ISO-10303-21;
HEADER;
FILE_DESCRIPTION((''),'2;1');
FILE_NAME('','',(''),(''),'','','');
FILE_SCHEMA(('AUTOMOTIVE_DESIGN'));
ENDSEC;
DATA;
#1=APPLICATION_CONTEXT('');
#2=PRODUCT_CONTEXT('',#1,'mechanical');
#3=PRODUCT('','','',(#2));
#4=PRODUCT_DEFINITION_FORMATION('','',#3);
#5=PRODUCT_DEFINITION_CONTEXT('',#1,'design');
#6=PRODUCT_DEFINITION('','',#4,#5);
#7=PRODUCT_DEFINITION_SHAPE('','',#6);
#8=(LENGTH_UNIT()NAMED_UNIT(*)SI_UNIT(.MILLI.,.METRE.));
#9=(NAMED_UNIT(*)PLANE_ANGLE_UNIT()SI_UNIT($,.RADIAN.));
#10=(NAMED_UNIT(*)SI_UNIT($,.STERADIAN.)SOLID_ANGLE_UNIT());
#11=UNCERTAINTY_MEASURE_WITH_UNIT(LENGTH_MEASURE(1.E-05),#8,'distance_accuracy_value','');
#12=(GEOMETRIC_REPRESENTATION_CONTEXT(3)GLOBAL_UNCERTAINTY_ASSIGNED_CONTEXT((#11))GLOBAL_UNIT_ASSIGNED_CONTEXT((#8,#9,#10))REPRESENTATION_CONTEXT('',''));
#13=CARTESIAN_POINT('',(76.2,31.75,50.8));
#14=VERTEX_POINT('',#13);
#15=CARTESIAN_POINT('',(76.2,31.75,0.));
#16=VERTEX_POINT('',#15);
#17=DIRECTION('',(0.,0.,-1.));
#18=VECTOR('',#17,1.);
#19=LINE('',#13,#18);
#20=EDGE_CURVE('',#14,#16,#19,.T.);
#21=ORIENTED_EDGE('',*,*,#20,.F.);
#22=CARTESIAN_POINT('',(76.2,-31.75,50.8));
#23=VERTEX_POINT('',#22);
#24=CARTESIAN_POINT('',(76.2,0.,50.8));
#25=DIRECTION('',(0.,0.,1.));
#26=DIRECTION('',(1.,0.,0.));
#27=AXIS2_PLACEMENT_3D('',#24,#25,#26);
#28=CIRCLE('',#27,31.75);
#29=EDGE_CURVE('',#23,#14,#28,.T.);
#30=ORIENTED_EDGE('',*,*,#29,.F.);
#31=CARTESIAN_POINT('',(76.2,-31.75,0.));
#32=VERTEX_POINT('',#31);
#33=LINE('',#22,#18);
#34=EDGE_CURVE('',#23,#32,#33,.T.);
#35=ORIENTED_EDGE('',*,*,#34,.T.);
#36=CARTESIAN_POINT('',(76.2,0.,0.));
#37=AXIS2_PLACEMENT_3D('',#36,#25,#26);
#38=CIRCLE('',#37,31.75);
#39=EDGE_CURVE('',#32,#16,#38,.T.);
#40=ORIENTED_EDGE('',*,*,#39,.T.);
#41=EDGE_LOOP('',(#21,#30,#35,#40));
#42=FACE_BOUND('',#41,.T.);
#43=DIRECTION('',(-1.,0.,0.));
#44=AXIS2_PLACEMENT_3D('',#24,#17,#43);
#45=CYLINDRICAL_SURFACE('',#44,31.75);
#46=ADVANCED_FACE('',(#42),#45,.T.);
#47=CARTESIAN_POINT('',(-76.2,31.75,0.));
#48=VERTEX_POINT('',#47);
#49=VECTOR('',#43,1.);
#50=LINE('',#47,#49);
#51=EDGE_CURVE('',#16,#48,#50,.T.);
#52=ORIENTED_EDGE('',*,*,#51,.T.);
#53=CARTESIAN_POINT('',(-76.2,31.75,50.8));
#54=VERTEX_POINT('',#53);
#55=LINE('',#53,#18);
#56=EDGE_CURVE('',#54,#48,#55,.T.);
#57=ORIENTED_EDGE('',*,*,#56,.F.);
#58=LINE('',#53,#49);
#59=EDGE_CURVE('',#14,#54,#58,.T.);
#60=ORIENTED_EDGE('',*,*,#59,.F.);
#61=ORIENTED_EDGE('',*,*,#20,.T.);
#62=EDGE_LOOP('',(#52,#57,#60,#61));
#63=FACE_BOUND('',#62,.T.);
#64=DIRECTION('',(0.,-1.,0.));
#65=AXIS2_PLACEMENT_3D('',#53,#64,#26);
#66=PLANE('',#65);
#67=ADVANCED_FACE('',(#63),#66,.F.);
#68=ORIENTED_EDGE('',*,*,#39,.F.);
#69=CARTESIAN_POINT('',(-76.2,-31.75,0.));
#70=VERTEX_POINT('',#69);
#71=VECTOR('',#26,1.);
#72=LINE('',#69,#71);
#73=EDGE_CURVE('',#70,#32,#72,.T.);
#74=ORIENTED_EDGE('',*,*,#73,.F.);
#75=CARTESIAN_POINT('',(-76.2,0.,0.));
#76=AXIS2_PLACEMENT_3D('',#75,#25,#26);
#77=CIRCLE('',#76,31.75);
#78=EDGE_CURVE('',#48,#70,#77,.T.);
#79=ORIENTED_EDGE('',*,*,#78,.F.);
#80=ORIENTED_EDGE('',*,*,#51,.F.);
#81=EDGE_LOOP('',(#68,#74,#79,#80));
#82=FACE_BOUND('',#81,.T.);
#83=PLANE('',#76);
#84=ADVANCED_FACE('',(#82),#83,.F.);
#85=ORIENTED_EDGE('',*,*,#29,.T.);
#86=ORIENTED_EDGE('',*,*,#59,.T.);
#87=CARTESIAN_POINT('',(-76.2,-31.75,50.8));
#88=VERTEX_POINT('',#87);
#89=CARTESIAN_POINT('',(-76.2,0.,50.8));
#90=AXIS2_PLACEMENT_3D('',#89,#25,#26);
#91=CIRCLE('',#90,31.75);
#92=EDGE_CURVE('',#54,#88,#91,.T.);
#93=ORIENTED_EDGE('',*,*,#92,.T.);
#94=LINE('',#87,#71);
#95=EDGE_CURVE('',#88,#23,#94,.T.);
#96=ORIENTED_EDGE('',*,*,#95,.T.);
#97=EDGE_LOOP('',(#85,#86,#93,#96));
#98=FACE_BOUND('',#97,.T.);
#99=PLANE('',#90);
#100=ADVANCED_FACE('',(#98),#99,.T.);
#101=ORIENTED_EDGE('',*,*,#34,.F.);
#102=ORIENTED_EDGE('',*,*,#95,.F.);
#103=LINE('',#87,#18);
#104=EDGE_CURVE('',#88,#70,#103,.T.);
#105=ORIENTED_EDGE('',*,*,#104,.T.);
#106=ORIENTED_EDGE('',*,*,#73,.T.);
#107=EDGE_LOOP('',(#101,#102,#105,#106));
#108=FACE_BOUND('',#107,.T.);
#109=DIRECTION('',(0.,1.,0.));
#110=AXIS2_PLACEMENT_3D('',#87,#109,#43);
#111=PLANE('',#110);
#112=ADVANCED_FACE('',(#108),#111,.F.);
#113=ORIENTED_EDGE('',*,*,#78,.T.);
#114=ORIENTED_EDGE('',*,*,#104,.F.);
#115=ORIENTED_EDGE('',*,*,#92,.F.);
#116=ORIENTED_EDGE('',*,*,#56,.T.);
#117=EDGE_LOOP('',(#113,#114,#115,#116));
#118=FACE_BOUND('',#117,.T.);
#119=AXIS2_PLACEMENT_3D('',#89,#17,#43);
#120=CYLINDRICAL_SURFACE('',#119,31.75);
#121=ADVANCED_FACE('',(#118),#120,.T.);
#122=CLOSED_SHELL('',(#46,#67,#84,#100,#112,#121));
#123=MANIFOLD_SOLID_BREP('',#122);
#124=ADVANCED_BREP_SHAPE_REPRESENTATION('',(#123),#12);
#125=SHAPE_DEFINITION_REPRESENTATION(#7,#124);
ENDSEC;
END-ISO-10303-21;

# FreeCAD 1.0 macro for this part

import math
import FreeCAD as App
import Part
import Sketcher

V = App.Vector
Q = App.Units.Quantity

doc = App.newDocument("Part")
params = doc.addObject("Spreadsheet::Sheet", "Params")
for row, (alias, value) in enumerate([
    ("sketch1_width", "6 in"),
    ("sketch1_radius", "1.25 in"),
    ("pad1_length", "2 in"),
], start=1):
    params.set(f"A{row}", alias)
    params.set(f"B{row}", "=" + value)
    params.setAlias(f"B{row}", alias)

body = doc.addObject("PartDesign::Body", "Body")

# Sketch on XY plane
sketch1 = body.newObject("Sketcher::SketchObject", "Sketch")
sketch1.AttachmentSupport = (doc.getObject("XY_Plane"), [""])
sketch1.MapMode = "FlatFace"
sketch1.addGeometry(Part.LineSegment(V(76, 32, 0), V(-76, 32, 0)), False)
sketch1.addGeometry(Part.ArcOfCircle(Part.Circle(V(-76, 0, 0), V(0, 0, 1), 32), math.radians(90), math.radians(270)), False)
sketch1.addGeometry(Part.LineSegment(V(-76, -32, 0), V(76, -32, 0)), False)
sketch1.addGeometry(Part.ArcOfCircle(Part.Circle(V(76, 0, 0), V(0, 0, 1), 32), math.radians(-90), math.radians(90)), False)
sketch1.addConstraint(Sketcher.Constraint("Tangent", 0, 2, 1, 1))
sketch1.addConstraint(Sketcher.Constraint("Tangent", 1, 2, 2, 1))
sketch1.addConstraint(Sketcher.Constraint("Tangent", 2, 2, 3, 1))
sketch1.addConstraint(Sketcher.Constraint("Tangent", 3, 2, 0, 1))
sketch1.addConstraint(Sketcher.Constraint("Horizontal", 0))
sketch1.addConstraint(Sketcher.Constraint("Horizontal", 2))
sketch1.addConstraint(Sketcher.Constraint("Symmetric", 1, 3, 3, 3, -1, 1))
sketch1.addConstraint(Sketcher.Constraint("DistanceX", 0, 2, 0, 1, Q("6 in")))
sketch1.addConstraint(Sketcher.Constraint("Radius", 1, Q("1.25 in")))
sketch1.setExpression("Constraints[7]", "Params.sketch1_width")
sketch1.setExpression("Constraints[8]", "Params.sketch1_radius")
pad1 = body.newObject("PartDesign::Pad", "Pad")
pad1.Profile = sketch1
pad1.setExpression("Length", "Params.pad1_length")

doc.recompute()
